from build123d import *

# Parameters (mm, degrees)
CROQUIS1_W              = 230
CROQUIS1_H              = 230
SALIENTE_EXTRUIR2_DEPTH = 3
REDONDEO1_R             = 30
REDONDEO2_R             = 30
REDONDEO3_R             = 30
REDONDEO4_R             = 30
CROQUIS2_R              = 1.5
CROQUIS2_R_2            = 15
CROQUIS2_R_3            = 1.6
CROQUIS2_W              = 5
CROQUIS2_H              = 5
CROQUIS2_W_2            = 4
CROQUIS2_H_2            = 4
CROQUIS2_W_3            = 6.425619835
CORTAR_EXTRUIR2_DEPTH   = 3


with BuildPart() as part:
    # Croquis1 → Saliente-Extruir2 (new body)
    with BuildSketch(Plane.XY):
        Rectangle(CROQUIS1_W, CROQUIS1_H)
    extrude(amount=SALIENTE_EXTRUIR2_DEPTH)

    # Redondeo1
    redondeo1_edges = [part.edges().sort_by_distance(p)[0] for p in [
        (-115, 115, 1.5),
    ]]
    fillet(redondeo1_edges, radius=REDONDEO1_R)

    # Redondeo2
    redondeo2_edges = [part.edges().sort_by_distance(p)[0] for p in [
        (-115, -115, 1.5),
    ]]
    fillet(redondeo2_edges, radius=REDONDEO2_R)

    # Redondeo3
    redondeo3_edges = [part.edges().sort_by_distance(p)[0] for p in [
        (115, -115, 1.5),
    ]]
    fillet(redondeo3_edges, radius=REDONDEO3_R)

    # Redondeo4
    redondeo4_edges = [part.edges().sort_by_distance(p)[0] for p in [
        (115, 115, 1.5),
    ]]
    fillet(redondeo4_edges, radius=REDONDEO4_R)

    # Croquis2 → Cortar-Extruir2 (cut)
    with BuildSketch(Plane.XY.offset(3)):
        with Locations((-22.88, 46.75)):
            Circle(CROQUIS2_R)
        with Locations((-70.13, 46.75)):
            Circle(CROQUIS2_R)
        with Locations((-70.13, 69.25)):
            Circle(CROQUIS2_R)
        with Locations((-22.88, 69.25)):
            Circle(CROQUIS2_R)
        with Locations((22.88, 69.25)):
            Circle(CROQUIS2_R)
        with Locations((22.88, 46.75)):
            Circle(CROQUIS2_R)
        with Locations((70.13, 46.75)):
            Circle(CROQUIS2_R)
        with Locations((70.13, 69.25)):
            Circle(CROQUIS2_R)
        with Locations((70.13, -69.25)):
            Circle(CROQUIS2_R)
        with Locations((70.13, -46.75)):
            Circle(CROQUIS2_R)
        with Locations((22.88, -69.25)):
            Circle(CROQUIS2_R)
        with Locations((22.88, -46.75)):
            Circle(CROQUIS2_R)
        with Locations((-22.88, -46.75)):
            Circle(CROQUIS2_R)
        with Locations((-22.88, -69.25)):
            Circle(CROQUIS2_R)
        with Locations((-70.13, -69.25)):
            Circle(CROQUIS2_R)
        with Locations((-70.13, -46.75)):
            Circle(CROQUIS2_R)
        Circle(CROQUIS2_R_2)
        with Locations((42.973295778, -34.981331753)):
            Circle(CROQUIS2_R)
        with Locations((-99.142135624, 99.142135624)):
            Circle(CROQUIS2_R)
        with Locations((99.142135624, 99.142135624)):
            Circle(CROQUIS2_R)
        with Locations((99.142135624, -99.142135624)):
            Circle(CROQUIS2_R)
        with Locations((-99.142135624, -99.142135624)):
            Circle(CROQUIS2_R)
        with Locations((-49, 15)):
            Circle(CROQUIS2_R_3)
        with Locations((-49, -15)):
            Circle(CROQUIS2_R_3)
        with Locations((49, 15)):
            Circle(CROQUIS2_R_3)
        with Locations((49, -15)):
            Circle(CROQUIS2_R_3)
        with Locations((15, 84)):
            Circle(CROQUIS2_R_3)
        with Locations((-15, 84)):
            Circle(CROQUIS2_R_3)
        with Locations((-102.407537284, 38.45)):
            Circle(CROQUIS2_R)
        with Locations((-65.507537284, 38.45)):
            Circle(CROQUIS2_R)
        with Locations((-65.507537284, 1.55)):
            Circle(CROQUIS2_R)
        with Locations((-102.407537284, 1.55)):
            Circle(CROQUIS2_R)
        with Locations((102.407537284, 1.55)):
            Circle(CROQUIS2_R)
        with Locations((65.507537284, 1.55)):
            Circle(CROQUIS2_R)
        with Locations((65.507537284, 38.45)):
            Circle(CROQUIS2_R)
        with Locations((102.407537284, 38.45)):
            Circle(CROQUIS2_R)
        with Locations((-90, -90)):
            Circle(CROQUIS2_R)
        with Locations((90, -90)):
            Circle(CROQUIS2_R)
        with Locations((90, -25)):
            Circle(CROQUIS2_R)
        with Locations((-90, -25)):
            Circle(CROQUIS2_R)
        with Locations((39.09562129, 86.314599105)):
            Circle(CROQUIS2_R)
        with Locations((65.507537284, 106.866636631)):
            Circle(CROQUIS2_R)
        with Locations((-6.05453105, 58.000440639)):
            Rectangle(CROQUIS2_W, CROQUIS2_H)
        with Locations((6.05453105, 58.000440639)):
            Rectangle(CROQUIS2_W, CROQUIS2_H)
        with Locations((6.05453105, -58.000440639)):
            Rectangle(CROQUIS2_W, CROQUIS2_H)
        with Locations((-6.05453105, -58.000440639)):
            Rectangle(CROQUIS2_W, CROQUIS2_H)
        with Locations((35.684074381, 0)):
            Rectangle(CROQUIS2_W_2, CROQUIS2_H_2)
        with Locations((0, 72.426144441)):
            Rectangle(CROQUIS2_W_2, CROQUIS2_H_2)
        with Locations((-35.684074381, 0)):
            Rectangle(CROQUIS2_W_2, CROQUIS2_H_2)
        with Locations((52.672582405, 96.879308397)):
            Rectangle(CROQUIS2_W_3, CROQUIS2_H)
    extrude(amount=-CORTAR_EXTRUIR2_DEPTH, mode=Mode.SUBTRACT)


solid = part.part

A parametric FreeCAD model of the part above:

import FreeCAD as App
import Part
import Sketcher
from FreeCAD import Vector


def edges_at(feature, points):
    """Names of the edges that pass closest to the given points."""
    edges = feature.Shape.Edges
    near = lambda p: min(range(len(edges)), key=lambda i: edges[i].distToShape(Part.Vertex(*p))[0])
    return sorted({f"Edge{near(p) + 1}" for p in points})

doc = App.newDocument("Part")
body = doc.addObject("PartDesign::Body", "Body")

# Sketch on XY plane
sketch1 = doc.addObject("Sketcher::SketchObject", "Sketch")
body.addObject(sketch1)
sketch1.AttachmentSupport = (doc.XY_Plane, [""])
sketch1.MapMode = "FlatFace"
sketch1.addGeometry([
    Part.LineSegment(Vector(-115, 115, 0), Vector(-115, -115, 0)),
    Part.LineSegment(Vector(-115, -115, 0), Vector(115, -115, 0)),
    Part.LineSegment(Vector(115, -115, 0), Vector(115, 115, 0)),
    Part.LineSegment(Vector(115, 115, 0), Vector(-115, 115, 0)),
], False)
sketch1.addConstraint([
    Sketcher.Constraint("Coincident", 0, 2, 1, 1),
    Sketcher.Constraint("Coincident", 1, 2, 2, 1),
    Sketcher.Constraint("Coincident", 2, 2, 3, 1),
    Sketcher.Constraint("Coincident", 3, 2, 0, 1),
    Sketcher.Constraint("Vertical", 0),
    Sketcher.Constraint("Horizontal", 1),
    Sketcher.Constraint("Vertical", 2),
    Sketcher.Constraint("Horizontal", 3),
    Sketcher.Constraint("Symmetric", 0, 2, 2, 2, -1, 1),
    Sketcher.Constraint("Equal", 3, 0),
    Sketcher.Constraint("DistanceX", 1, 1, 1, 2, 230.0),
])
pad1 = doc.addObject("PartDesign::Pad", "Pad")
body.addObject(pad1)
pad1.Profile = sketch1
pad1.Length = 3
doc.recompute()

fillet = doc.addObject("PartDesign::Fillet", "Fillet")
body.addObject(fillet)
fillet.Base = (pad1, edges_at(pad1, [(-115, 115, 1.5)]))
fillet.Radius = 30
doc.recompute()

fillet2 = doc.addObject("PartDesign::Fillet", "Fillet001")
body.addObject(fillet2)
fillet2.Base = (fillet, edges_at(fillet, [(-115, -115, 1.5)]))
fillet2.Radius = 30
doc.recompute()

fillet3 = doc.addObject("PartDesign::Fillet", "Fillet002")
body.addObject(fillet3)
fillet3.Base = (fillet2, edges_at(fillet2, [(115, -115, 1.5)]))
fillet3.Radius = 30
doc.recompute()

fillet4 = doc.addObject("PartDesign::Fillet", "Fillet003")
body.addObject(fillet4)
fillet4.Base = (fillet3, edges_at(fillet3, [(115, 115, 1.5)]))
fillet4.Radius = 30

# Sketch on XY plane
sketch2 = doc.addObject("Sketcher::SketchObject", "Sketch001")
body.addObject(sketch2)
sketch2.AttachmentSupport = (doc.XY_Plane, [""])
sketch2.MapMode = "FlatFace"
sketch2.AttachmentOffset = App.Placement(Vector(0, 0, 3), App.Rotation())
sketch2.addGeometry([
    Part.Circle(Vector(-22.9, 46.8, 0), Vector(0, 0, 1), 1.5),  # 0
    Part.Circle(Vector(-70.1, 46.8, 0), Vector(0, 0, 1), 1.5),  # 1
    Part.Circle(Vector(-70.1, 69.2, 0), Vector(0, 0, 1), 1.5),  # 2
    Part.Circle(Vector(-22.9, 69.2, 0), Vector(0, 0, 1), 1.5),  # 3
    Part.Circle(Vector(22.9, 69.2, 0), Vector(0, 0, 1), 1.5),  # 4
    Part.Circle(Vector(22.9, 46.8, 0), Vector(0, 0, 1), 1.5),  # 5
    Part.Circle(Vector(70.1, 46.8, 0), Vector(0, 0, 1), 1.5),  # 6
    Part.Circle(Vector(70.1, 69.2, 0), Vector(0, 0, 1), 1.5),  # 7
    Part.Circle(Vector(70.1, -69.2, 0), Vector(0, 0, 1), 1.5),  # 8
    Part.Circle(Vector(70.1, -46.8, 0), Vector(0, 0, 1), 1.5),  # 9
    Part.Circle(Vector(22.9, -69.2, 0), Vector(0, 0, 1), 1.5),  # 10
    Part.Circle(Vector(22.9, -46.8, 0), Vector(0, 0, 1), 1.5),  # 11
    Part.Circle(Vector(-22.9, -46.8, 0), Vector(0, 0, 1), 1.5),  # 12
    Part.Circle(Vector(-22.9, -69.2, 0), Vector(0, 0, 1), 1.5),  # 13
    Part.Circle(Vector(-70.1, -69.2, 0), Vector(0, 0, 1), 1.5),  # 14
    Part.Circle(Vector(-70.1, -46.8, 0), Vector(0, 0, 1), 1.5),  # 15
    Part.Circle(Vector(0, 0, 0), Vector(0, 0, 1), 15),  # 16
    Part.Circle(Vector(43, -35, 0), Vector(0, 0, 1), 1.5),  # 17
    Part.Circle(Vector(-99.1, 99.1, 0), Vector(0, 0, 1), 1.5),  # 18
    Part.Circle(Vector(99.1, 99.1, 0), Vector(0, 0, 1), 1.5),  # 19
    Part.Circle(Vector(99.1, -99.1, 0), Vector(0, 0, 1), 1.5),  # 20
    Part.Circle(Vector(-99.1, -99.1, 0), Vector(0, 0, 1), 1.5),  # 21
    Part.Circle(Vector(-49, 15, 0), Vector(0, 0, 1), 1.6),  # 22
    Part.Circle(Vector(-49, -15, 0), Vector(0, 0, 1), 1.6),  # 23
    Part.Circle(Vector(49, 15, 0), Vector(0, 0, 1), 1.6),  # 24
    Part.Circle(Vector(49, -15, 0), Vector(0, 0, 1), 1.6),  # 25
    Part.Circle(Vector(15, 84, 0), Vector(0, 0, 1), 1.6),  # 26
    Part.Circle(Vector(-15, 84, 0), Vector(0, 0, 1), 1.6),  # 27
    Part.Circle(Vector(-102.4, 38.5, 0), Vector(0, 0, 1), 1.5),  # 28
    Part.Circle(Vector(-65.5, 38.5, 0), Vector(0, 0, 1), 1.5),  # 29
    Part.Circle(Vector(-65.5, 1.6, 0), Vector(0, 0, 1), 1.5),  # 30
    Part.Circle(Vector(-102.4, 1.6, 0), Vector(0, 0, 1), 1.5),  # 31
    Part.Circle(Vector(102.4, 1.6, 0), Vector(0, 0, 1), 1.5),  # 32
    Part.Circle(Vector(65.5, 1.6, 0), Vector(0, 0, 1), 1.5),  # 33
    Part.Circle(Vector(65.5, 38.5, 0), Vector(0, 0, 1), 1.5),  # 34
    Part.Circle(Vector(102.4, 38.5, 0), Vector(0, 0, 1), 1.5),  # 35
    Part.Circle(Vector(-90, -90, 0), Vector(0, 0, 1), 1.5),  # 36
    Part.Circle(Vector(90, -90, 0), Vector(0, 0, 1), 1.5),  # 37
    Part.Circle(Vector(90, -25, 0), Vector(0, 0, 1), 1.5),  # 38
    Part.Circle(Vector(-90, -25, 0), Vector(0, 0, 1), 1.5),  # 39
    Part.Circle(Vector(39.1, 86.3, 0), Vector(0, 0, 1), 1.5),  # 40
    Part.Circle(Vector(65.5, 106.9, 0), Vector(0, 0, 1), 1.5),  # 41
    Part.LineSegment(Vector(-8.6, 60.5, 0), Vector(-8.6, 55.5, 0)),  # 42
    Part.LineSegment(Vector(-8.6, 55.5, 0), Vector(-3.6, 55.5, 0)),  # 43
    Part.LineSegment(Vector(-3.6, 55.5, 0), Vector(-3.6, 60.5, 0)),  # 44
    Part.LineSegment(Vector(-3.6, 60.5, 0), Vector(-8.6, 60.5, 0)),  # 45
    Part.LineSegment(Vector(3.6, 60.5, 0), Vector(3.6, 55.5, 0)),  # 46
    Part.LineSegment(Vector(3.6, 55.5, 0), Vector(8.6, 55.5, 0)),  # 47
    Part.LineSegment(Vector(8.6, 55.5, 0), Vector(8.6, 60.5, 0)),  # 48
    Part.LineSegment(Vector(8.6, 60.5, 0), Vector(3.6, 60.5, 0)),  # 49
    Part.LineSegment(Vector(3.6, -55.5, 0), Vector(3.6, -60.5, 0)),  # 50
    Part.LineSegment(Vector(3.6, -60.5, 0), Vector(8.6, -60.5, 0)),  # 51
    Part.LineSegment(Vector(8.6, -60.5, 0), Vector(8.6, -55.5, 0)),  # 52
    Part.LineSegment(Vector(8.6, -55.5, 0), Vector(3.6, -55.5, 0)),  # 53
    Part.LineSegment(Vector(-8.6, -55.5, 0), Vector(-8.6, -60.5, 0)),  # 54
    Part.LineSegment(Vector(-8.6, -60.5, 0), Vector(-3.6, -60.5, 0)),  # 55
    Part.LineSegment(Vector(-3.6, -60.5, 0), Vector(-3.6, -55.5, 0)),  # 56
    Part.LineSegment(Vector(-3.6, -55.5, 0), Vector(-8.6, -55.5, 0)),  # 57
    Part.LineSegment(Vector(33.7, 2, 0), Vector(33.7, -2, 0)),  # 58
    Part.LineSegment(Vector(33.7, -2, 0), Vector(37.7, -2, 0)),  # 59
    Part.LineSegment(Vector(37.7, -2, 0), Vector(37.7, 2, 0)),  # 60
    Part.LineSegment(Vector(37.7, 2, 0), Vector(33.7, 2, 0)),  # 61
    Part.LineSegment(Vector(-2, 74.4, 0), Vector(-2, 70.4, 0)),  # 62
    Part.LineSegment(Vector(-2, 70.4, 0), Vector(2, 70.4, 0)),  # 63
    Part.LineSegment(Vector(2, 70.4, 0), Vector(2, 74.4, 0)),  # 64
    Part.LineSegment(Vector(2, 74.4, 0), Vector(-2, 74.4, 0)),  # 65
    Part.LineSegment(Vector(-37.7, 2, 0), Vector(-37.7, -2, 0)),  # 66
    Part.LineSegment(Vector(-37.7, -2, 0), Vector(-33.7, -2, 0)),  # 67
    Part.LineSegment(Vector(-33.7, -2, 0), Vector(-33.7, 2, 0)),  # 68
    Part.LineSegment(Vector(-33.7, 2, 0), Vector(-37.7, 2, 0)),  # 69
    Part.LineSegment(Vector(49.5, 99.4, 0), Vector(49.5, 94.4, 0)),  # 70
    Part.LineSegment(Vector(49.5, 94.4, 0), Vector(55.9, 94.4, 0)),  # 71
    Part.LineSegment(Vector(55.9, 94.4, 0), Vector(55.9, 99.4, 0)),  # 72
    Part.LineSegment(Vector(55.9, 99.4, 0), Vector(49.5, 99.4, 0)),  # 73
], False)
sketch2.addConstraint([
    Sketcher.Constraint("Coincident", 42, 2, 43, 1),
    Sketcher.Constraint("Coincident", 43, 2, 44, 1),
    Sketcher.Constraint("Coincident", 44, 2, 45, 1),
    Sketcher.Constraint("Coincident", 45, 2, 42, 1),
    Sketcher.Constraint("Coincident", 46, 2, 47, 1),
    Sketcher.Constraint("Coincident", 47, 2, 48, 1),
    Sketcher.Constraint("Coincident", 48, 2, 49, 1),
    Sketcher.Constraint("Coincident", 49, 2, 46, 1),
    Sketcher.Constraint("Coincident", 50, 2, 51, 1),
    Sketcher.Constraint("Coincident", 51, 2, 52, 1),
    Sketcher.Constraint("Coincident", 52, 2, 53, 1),
    Sketcher.Constraint("Coincident", 53, 2, 50, 1),
    Sketcher.Constraint("Coincident", 54, 2, 55, 1),
    Sketcher.Constraint("Coincident", 55, 2, 56, 1),
    Sketcher.Constraint("Coincident", 56, 2, 57, 1),
    Sketcher.Constraint("Coincident", 57, 2, 54, 1),
    Sketcher.Constraint("Coincident", 58, 2, 59, 1),
    Sketcher.Constraint("Coincident", 59, 2, 60, 1),
    Sketcher.Constraint("Coincident", 60, 2, 61, 1),
    Sketcher.Constraint("Coincident", 61, 2, 58, 1),
    Sketcher.Constraint("Coincident", 62, 2, 63, 1),
    Sketcher.Constraint("Coincident", 63, 2, 64, 1),
    Sketcher.Constraint("Coincident", 64, 2, 65, 1),
    Sketcher.Constraint("Coincident", 65, 2, 62, 1),
    Sketcher.Constraint("Coincident", 66, 2, 67, 1),
    Sketcher.Constraint("Coincident", 67, 2, 68, 1),
    Sketcher.Constraint("Coincident", 68, 2, 69, 1),
    Sketcher.Constraint("Coincident", 69, 2, 66, 1),
    Sketcher.Constraint("Coincident", 70, 2, 71, 1),
    Sketcher.Constraint("Coincident", 71, 2, 72, 1),
    Sketcher.Constraint("Coincident", 72, 2, 73, 1),
    Sketcher.Constraint("Coincident", 73, 2, 70, 1),
    Sketcher.Constraint("Vertical", 42),
    Sketcher.Constraint("Horizontal", 43),
    Sketcher.Constraint("Vertical", 44),
    Sketcher.Constraint("Horizontal", 45),
    Sketcher.Constraint("Vertical", 46),
    Sketcher.Constraint("Horizontal", 47),
    Sketcher.Constraint("Vertical", 48),
    Sketcher.Constraint("Horizontal", 49),
    Sketcher.Constraint("Vertical", 50),
    Sketcher.Constraint("Horizontal", 51),
    Sketcher.Constraint("Vertical", 52),
    Sketcher.Constraint("Horizontal", 53),
    Sketcher.Constraint("Vertical", 54),
    Sketcher.Constraint("Horizontal", 55),
    Sketcher.Constraint("Vertical", 56),
    Sketcher.Constraint("Horizontal", 57),
    Sketcher.Constraint("Vertical", 58),
    Sketcher.Constraint("Horizontal", 59),
    Sketcher.Constraint("Vertical", 60),
    Sketcher.Constraint("Horizontal", 61),
    Sketcher.Constraint("Vertical", 62),
    Sketcher.Constraint("Horizontal", 63),
    Sketcher.Constraint("Vertical", 64),
    Sketcher.Constraint("Horizontal", 65),
    Sketcher.Constraint("Vertical", 66),
    Sketcher.Constraint("Horizontal", 67),
    Sketcher.Constraint("Vertical", 68),
    Sketcher.Constraint("Horizontal", 69),
    Sketcher.Constraint("Vertical", 70),
    Sketcher.Constraint("Horizontal", 71),
    Sketcher.Constraint("Vertical", 72),
    Sketcher.Constraint("Horizontal", 73),
    Sketcher.Constraint("Coincident", 16, 3, -1, 1),
    Sketcher.Constraint("Equal", 0, 1),
    Sketcher.Constraint("Equal", 1, 2),
    Sketcher.Constraint("Equal", 2, 3),
    Sketcher.Constraint("Equal", 3, 4),
    Sketcher.Constraint("Equal", 4, 5),
    Sketcher.Constraint("Equal", 5, 6),
    Sketcher.Constraint("Equal", 6, 7),
    Sketcher.Constraint("Equal", 7, 8),
    Sketcher.Constraint("Equal", 8, 9),
    Sketcher.Constraint("Equal", 9, 10),
    Sketcher.Constraint("Equal", 10, 11),
    Sketcher.Constraint("Equal", 11, 12),
    Sketcher.Constraint("Equal", 12, 13),
    Sketcher.Constraint("Equal", 13, 14),
    Sketcher.Constraint("Equal", 14, 15),
    Sketcher.Constraint("Equal", 15, 17),
    Sketcher.Constraint("Equal", 17, 18),
    Sketcher.Constraint("Equal", 18, 19),
    Sketcher.Constraint("Equal", 19, 20),
    Sketcher.Constraint("Equal", 20, 21),
    Sketcher.Constraint("Equal", 22, 23),
    Sketcher.Constraint("Equal", 23, 24),
    Sketcher.Constraint("Equal", 24, 25),
    Sketcher.Constraint("Equal", 25, 26),
    Sketcher.Constraint("Equal", 26, 27),
    Sketcher.Constraint("Equal", 21, 28),
    Sketcher.Constraint("Equal", 28, 29),
    Sketcher.Constraint("Equal", 29, 30),
    Sketcher.Constraint("Equal", 30, 31),
    Sketcher.Constraint("Equal", 31, 32),
    Sketcher.Constraint("Equal", 32, 33),
    Sketcher.Constraint("Equal", 33, 34),
    Sketcher.Constraint("Equal", 34, 35),
    Sketcher.Constraint("Equal", 35, 36),
    Sketcher.Constraint("Equal", 36, 37),
    Sketcher.Constraint("Equal", 37, 38),
    Sketcher.Constraint("Equal", 38, 39),
    Sketcher.Constraint("Equal", 39, 40),
    Sketcher.Constraint("Equal", 40, 41),
    Sketcher.Constraint("Symmetric", 2, 3, 8, 3, -1, 1),
    Sketcher.Constraint("Symmetric", 1, 3, 9, 3, -1, 1),
    Sketcher.Constraint("Symmetric", 3, 3, 10, 3, -1, 1),
    Sketcher.Constraint("Symmetric", 0, 3, 11, 3, -1, 1),
    Sketcher.Constraint("Symmetric", 5, 3, 12, 3, -1, 1),
    Sketcher.Constraint("Symmetric", 4, 3, 13, 3, -1, 1),
    Sketcher.Constraint("Symmetric", 7, 3, 14, 3, -1, 1),
    Sketcher.Constraint("Symmetric", 6, 3, 15, 3, -1, 1),
    Sketcher.Constraint("Symmetric", 18, 3, 20, 3, -1, 1),
    Sketcher.Constraint("Symmetric", 19, 3, 21, 3, -1, 1),
    Sketcher.Constraint("Symmetric", 23, 3, 24, 3, -1, 1),
    Sketcher.Constraint("Symmetric", 22, 3, 25, 3, -1, 1),
    Sketcher.Constraint("Symmetric", 44, 2, 50, 2, -1, 1),
    Sketcher.Constraint("Symmetric", 42, 2, 52, 2, -1, 1),
    Sketcher.Constraint("Symmetric", 48, 2, 54, 2, -1, 1),
    Sketcher.Constraint("Symmetric", 46, 2, 56, 2, -1, 1),
    Sketcher.Constraint("Symmetric", 60, 2, 66, 2, -1, 1),
    Sketcher.Constraint("Symmetric", 58, 2, 68, 2, -1, 1),
    Sketcher.Constraint("Symmetric", 3, 3, 4, 3, -2),
    Sketcher.Constraint("Symmetric", 0, 3, 5, 3, -2),
    Sketcher.Constraint("Symmetric", 1, 3, 6, 3, -2),
    Sketcher.Constraint("Symmetric", 2, 3, 7, 3, -2),
    Sketcher.Constraint("Symmetric", 18, 3, 19, 3, -2),
    Sketcher.Constraint("Symmetric", 22, 3, 24, 3, -2),
    Sketcher.Constraint("Symmetric", 26, 3, 27, 3, -2),
    Sketcher.Constraint("Symmetric", 31, 3, 32, 3, -2),
    Sketcher.Constraint("Symmetric", 30, 3, 33, 3, -2),
    Sketcher.Constraint("Symmetric", 29, 3, 34, 3, -2),
    Sketcher.Constraint("Symmetric", 28, 3, 35, 3, -2),
    Sketcher.Constraint("Symmetric", 36, 3, 37, 3, -2),
    Sketcher.Constraint("Symmetric", 38, 3, 39, 3, -2),
    Sketcher.Constraint("Symmetric", 43, 2, 46, 2, -2),
    Sketcher.Constraint("Symmetric", 45, 2, 48, 2, -2),
    Sketcher.Constraint("Horizontal", 0, 3, 1, 3),
    Sketcher.Constraint("Horizontal", 2, 3, 3, 3),
    Sketcher.Constraint("Horizontal", 28, 3, 29, 3),
    Sketcher.Constraint("Horizontal", 30, 3, 31, 3),
    Sketcher.Constraint("Horizontal", 59, 2, 66, 2),
    Sketcher.Constraint("Vertical", 1, 3, 2, 3),
    Sketcher.Constraint("Vertical", 0, 3, 3, 3),
    Sketcher.Constraint("Vertical", 29, 3, 30, 3),
    Sketcher.Constraint("Vertical", 28, 3, 31, 3),
    Sketcher.Constraint("Vertical", 37, 3, 38, 3),
    Sketcher.Constraint("Vertical", 34, 3, 41, 3),
    Sketcher.Constraint("Equal", 61, 63),
    Sketcher.Constraint("Equal", 57, 42),
    Sketcher.Constraint("Equal", 69, 58),
    Sketcher.Constraint("Equal", 60, 62),
    Sketcher.Constraint("Equal", 56, 70),
    Sketcher.Constraint("Diameter", 0, 3.0),
    Sketcher.Constraint("Diameter", 16, 30.0),
    Sketcher.Constraint("Diameter", 22, 3.2),
    Sketcher.Constraint("DistanceX", 43, 1, 43, 2, 5.0),
    Sketcher.Constraint("DistanceX", 59, 1, 59, 2, 4.0),
    Sketcher.Constraint("DistanceX", 22, 3, -1, 1, 49.0),
    Sketcher.Constraint("DistanceY", -1, 1, 22, 3, 15.0),
    Sketcher.Constraint("DistanceX", -1, 1, 26, 3, 15.0),
    Sketcher.Constraint("DistanceY", -1, 1, 26, 3, 84.0),
    Sketcher.Constraint("DistanceX", 36, 3, -1, 1, 90.0),
    Sketcher.Constraint("DistanceY", 36, 3, -1, 1, 90.0),
    Sketcher.Constraint("DistanceY", 38, 3, -1, 1, 25.0),
    Sketcher.Constraint("DistanceX", 62, 2, -1, 1, 2.0),
    Sketcher.Constraint("DistanceX", 0, 3, -1, 1, 22.88),
    Sketcher.Constraint("DistanceY", -1, 1, 0, 3, 46.75),
    Sketcher.Constraint("DistanceX", 1, 3, -1, 1, 70.13),
    Sketcher.Constraint("DistanceY", -1, 1, 2, 3, 69.25),
    Sketcher.Constraint("DistanceY", -1, 1, 28, 3, 38.45),
    Sketcher.Constraint("DistanceY", -1, 1, 30, 3, 1.55),
    Sketcher.Constraint("DistanceX", 71, 1, 71, 2, 6.42562),
    Sketcher.Constraint("DistanceY", -1, 1, 40, 3, 86.314599),
    Sketcher.Constraint("DistanceY", 17, 3, -1, 1, 34.981332),
    Sketcher.Constraint("DistanceX", -1, 1, 40, 3, 39.095621),
    Sketcher.Constraint("DistanceX", 42, 2, -1, 1, 8.554531),
    Sketcher.Constraint("DistanceY", -1, 1, 42, 2, 55.500441),
    Sketcher.Constraint("DistanceY", -1, 1, 70, 2, 94.379308),
    Sketcher.Constraint("DistanceX", -1, 1, 17, 3, 42.973296),
    Sketcher.Constraint("DistanceX", 18, 3, -1, 1, 99.142136),
    Sketcher.Constraint("DistanceY", -1, 1, 18, 3, 99.142136),
    Sketcher.Constraint("DistanceX", 28, 3, -1, 1, 102.407537),
    Sketcher.Constraint("DistanceX", 29, 3, -1, 1, 65.507537),
    Sketcher.Constraint("DistanceY", -1, 1, 41, 3, 106.866637),
    Sketcher.Constraint("DistanceX", -1, 1, 58, 2, 33.684074),
    Sketcher.Constraint("DistanceY", -1, 1, 62, 2, 70.426144),
    Sketcher.Constraint("DistanceX", -1, 1, 70, 2, 49.459772),
])
pocket1 = doc.addObject("PartDesign::Pocket", "Pocket")
body.addObject(pocket1)
pocket1.Profile = sketch2
pocket1.Length = 3

doc.recompute()
